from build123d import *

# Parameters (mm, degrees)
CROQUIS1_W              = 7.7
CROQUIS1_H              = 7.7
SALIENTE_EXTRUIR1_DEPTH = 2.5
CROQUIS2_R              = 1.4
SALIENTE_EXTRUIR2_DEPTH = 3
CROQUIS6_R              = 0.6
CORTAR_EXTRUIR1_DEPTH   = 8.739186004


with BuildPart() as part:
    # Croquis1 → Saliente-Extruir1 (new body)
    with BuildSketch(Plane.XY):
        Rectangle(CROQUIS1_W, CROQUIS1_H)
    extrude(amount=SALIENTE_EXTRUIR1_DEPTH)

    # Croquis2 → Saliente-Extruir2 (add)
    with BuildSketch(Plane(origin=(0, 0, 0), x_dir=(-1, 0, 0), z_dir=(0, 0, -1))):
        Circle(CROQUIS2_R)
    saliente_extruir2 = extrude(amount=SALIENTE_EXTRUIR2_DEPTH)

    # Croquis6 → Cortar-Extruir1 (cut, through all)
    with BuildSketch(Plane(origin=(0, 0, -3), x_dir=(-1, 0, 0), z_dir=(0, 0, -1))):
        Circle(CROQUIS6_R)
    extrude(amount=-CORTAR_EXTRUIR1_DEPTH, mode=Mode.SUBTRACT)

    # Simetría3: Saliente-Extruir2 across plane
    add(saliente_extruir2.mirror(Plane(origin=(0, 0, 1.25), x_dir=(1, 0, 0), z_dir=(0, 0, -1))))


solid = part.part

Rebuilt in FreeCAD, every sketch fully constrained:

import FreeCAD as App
import Part
import Sketcher
from FreeCAD import Vector
Q = App.Units.Quantity

doc = App.newDocument("Part")
params = doc.addObject("Spreadsheet::Sheet", "Params")
for row, (alias, value) in enumerate([
    ("sketch1_width", "7.7 mm"),
    ("pad1_length", "2.5 mm"),
    ("sketch2_diameter", "2.8 mm"),
    ("pad2_length", "3 mm"),
    ("sketch3_diameter", "1.2 mm"),
], start=1):
    params.set(f"A{row}", alias)
    params.set(f"B{row}", "=" + value)
    params.setAlias(f"B{row}", alias)

body = doc.addObject("PartDesign::Body", "Body")

sketch1 = body.newObject("Sketcher::SketchObject", "Sketch")
sketch1.AttachmentSupport = (doc.getObject("XY_Plane"), [""])
sketch1.MapMode = "FlatFace"
sketch1.addGeometry([
    Part.LineSegment(Vector(-4, 4, 0), Vector(-4, -4, 0)),
    Part.LineSegment(Vector(-4, -4, 0), Vector(4, -4, 0)),
    Part.LineSegment(Vector(4, -4, 0), Vector(4, 4, 0)),
    Part.LineSegment(Vector(4, 4, 0), Vector(-4, 4, 0)),
], False)
sketch1.addConstraint([
    Sketcher.Constraint("Coincident", 0, 2, 1, 1),
    Sketcher.Constraint("Coincident", 1, 2, 2, 1),
    Sketcher.Constraint("Coincident", 2, 2, 3, 1),
    Sketcher.Constraint("Coincident", 3, 2, 0, 1),
    Sketcher.Constraint("Vertical", 0),
    Sketcher.Constraint("Horizontal", 1),
    Sketcher.Constraint("Vertical", 2),
    Sketcher.Constraint("Horizontal", 3),
    Sketcher.Constraint("Symmetric", 0, 2, 2, 2, -1, 1),
    Sketcher.Constraint("Equal", 3, 0),
    Sketcher.Constraint("DistanceX", 1, 1, 1, 2, Q("7.7 mm")),
])
sketch1.setExpression("Constraints[10]", "Params.sketch1_width")
pad1 = body.newObject("PartDesign::Pad", "Pad")
pad1.Profile = sketch1
pad1.setExpression("Length", "Params.pad1_length")

sketch2 = body.newObject("Sketcher::SketchObject", "Sketch001")
sketch2.AttachmentSupport = (doc.getObject("XY_Plane"), [""])
sketch2.MapMode = "FlatFace"
sketch2.addGeometry(Part.Circle(Vector(0, 0, 0), Vector(0, 0, 1), 1.4), False)
sketch2.addConstraint([
    Sketcher.Constraint("Coincident", 0, 3, -1, 1),
    Sketcher.Constraint("Diameter", 0, Q("2.8 mm")),
])
sketch2.setExpression("Constraints[1]", "Params.sketch2_diameter")
pad2 = body.newObject("PartDesign::Pad", "Pad001")
pad2.Profile = sketch2
pad2.setExpression("Length", "Params.pad2_length")
pad2.Reversed = True

sketch3 = body.newObject("Sketcher::SketchObject", "Sketch002")
sketch3.AttachmentSupport = (doc.getObject("XY_Plane"), [""])
sketch3.MapMode = "FlatFace"
sketch3.AttachmentOffset = App.Placement(Vector(0, 0, -3), App.Rotation())
sketch3.addGeometry(Part.Circle(Vector(0, 0, 0), Vector(0, 0, 1), 0.6), False)
sketch3.addConstraint([
    Sketcher.Constraint("Coincident", 0, 3, -1, 1),
    Sketcher.Constraint("Diameter", 0, Q("1.2 mm")),
])
sketch3.setExpression("Constraints[1]", "Params.sketch3_diameter")
pocket1 = body.newObject("PartDesign::Pocket", "Pocket")
pocket1.Profile = sketch3
pocket1.Type = "ThroughAll"
pocket1.Reversed = True
doc.recompute()

datumplane = body.newObject("PartDesign::Plane", "DatumPlane")
datumplane.AttachmentSupport = (doc.getObject("XY_Plane"), [""])
datumplane.MapMode = "FlatFace"
datumplane.AttachmentOffset = App.Placement(Vector(0, 0, 1.25), App.Rotation())
mirrored = body.newObject("PartDesign::Mirrored", "Mirrored")
mirrored.Originals = [pad2]
mirrored.MirrorPlane = (datumplane, [""])
body.Tip = mirrored

doc.recompute()
